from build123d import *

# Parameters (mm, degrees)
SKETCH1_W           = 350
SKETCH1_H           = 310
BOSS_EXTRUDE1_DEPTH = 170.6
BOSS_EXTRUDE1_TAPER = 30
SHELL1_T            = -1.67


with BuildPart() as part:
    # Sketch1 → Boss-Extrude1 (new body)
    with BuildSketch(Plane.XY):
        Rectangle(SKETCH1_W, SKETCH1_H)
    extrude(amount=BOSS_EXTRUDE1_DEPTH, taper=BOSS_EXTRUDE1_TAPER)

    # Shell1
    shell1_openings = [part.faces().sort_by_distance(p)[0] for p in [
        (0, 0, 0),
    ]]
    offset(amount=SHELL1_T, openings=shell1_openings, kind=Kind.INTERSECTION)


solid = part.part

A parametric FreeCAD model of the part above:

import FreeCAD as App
import Part
import Sketcher

V = App.Vector


def faces_at(feature, points):
    """Names of the faces that lie closest to the given points."""
    faces = feature.Shape.Faces
    near = lambda p: min(range(len(faces)), key=lambda i: faces[i].distToShape(Part.Vertex(*p))[0])
    return sorted({f"Face{near(p) + 1}" for p in points})


def add_polygon(sketch, points):
    """Adds a closed chain of lines whose ends are joined by coincident constraints."""
    first, n = sketch.GeometryCount, len(points)
    for a, b in zip(points, points[1:] + points[:1]):
        sketch.addGeometry(Part.LineSegment(App.Vector(*a, 0), App.Vector(*b, 0)), False)
    for i in range(n):
        sketch.addConstraint(Sketcher.Constraint("Coincident", first + i, 2, first + (i + 1) % n, 1))

doc = App.newDocument("Part")
params = doc.addObject("Spreadsheet::Sheet", "Params")
for row, (alias, value) in enumerate([
    ("sketch1_width", "350 mm"),
    ("sketch1_height", "310 mm"),
    ("pad1_length", "170.6 mm"),
    ("pad1_taper", "-30 deg"),
    ("thickness_wall", "1.67 mm"),
], start=1):
    params.set(f"A{row}", alias)
    params.set(f"B{row}", "=" + value)
    params.setAlias(f"B{row}", alias)

body = doc.addObject("PartDesign::Body", "Body")

# Sketch on XY plane
sketch1 = body.newObject("Sketcher::SketchObject", "Sketch")
sketch1.AttachmentSupport = (doc.getObject("XY_Plane"), [""])
sketch1.MapMode = "FlatFace"
add_polygon(sketch1, [(-175, 155), (-175, -155), (175, -155), (175, 155)])  # lines 0-3
sketch1.addConstraint(Sketcher.Constraint("Vertical", 0))
sketch1.addConstraint(Sketcher.Constraint("Horizontal", 1))
sketch1.addConstraint(Sketcher.Constraint("Vertical", 2))
sketch1.addConstraint(Sketcher.Constraint("Horizontal", 3))
sketch1.addConstraint(Sketcher.Constraint("Symmetric", 0, 2, 2, 2, -1, 1))
sketch1.addConstraint(Sketcher.Constraint("DistanceX", 1, 1, 1, 2, 350.0))
sketch1.addConstraint(Sketcher.Constraint("DistanceY", 0, 2, 0, 1, 310.0))
sketch1.setExpression("Constraints[9]", "Params.sketch1_width")
sketch1.setExpression("Constraints[10]", "Params.sketch1_height")
pad1 = body.newObject("PartDesign::Pad", "Pad")
pad1.Profile = sketch1
pad1.setExpression("Length", "Params.pad1_length")
pad1.setExpression("TaperAngle", "Params.pad1_taper")
doc.recompute()

thickness = body.newObject("PartDesign::Thickness", "Thickness")
thickness.Base = (pad1, faces_at(pad1, [(0, 0, 0)]))
thickness.setExpression("Value", "Params.thickness_wall")
thickness.Reversed = True
thickness.Join = "Intersection"

doc.recompute()
